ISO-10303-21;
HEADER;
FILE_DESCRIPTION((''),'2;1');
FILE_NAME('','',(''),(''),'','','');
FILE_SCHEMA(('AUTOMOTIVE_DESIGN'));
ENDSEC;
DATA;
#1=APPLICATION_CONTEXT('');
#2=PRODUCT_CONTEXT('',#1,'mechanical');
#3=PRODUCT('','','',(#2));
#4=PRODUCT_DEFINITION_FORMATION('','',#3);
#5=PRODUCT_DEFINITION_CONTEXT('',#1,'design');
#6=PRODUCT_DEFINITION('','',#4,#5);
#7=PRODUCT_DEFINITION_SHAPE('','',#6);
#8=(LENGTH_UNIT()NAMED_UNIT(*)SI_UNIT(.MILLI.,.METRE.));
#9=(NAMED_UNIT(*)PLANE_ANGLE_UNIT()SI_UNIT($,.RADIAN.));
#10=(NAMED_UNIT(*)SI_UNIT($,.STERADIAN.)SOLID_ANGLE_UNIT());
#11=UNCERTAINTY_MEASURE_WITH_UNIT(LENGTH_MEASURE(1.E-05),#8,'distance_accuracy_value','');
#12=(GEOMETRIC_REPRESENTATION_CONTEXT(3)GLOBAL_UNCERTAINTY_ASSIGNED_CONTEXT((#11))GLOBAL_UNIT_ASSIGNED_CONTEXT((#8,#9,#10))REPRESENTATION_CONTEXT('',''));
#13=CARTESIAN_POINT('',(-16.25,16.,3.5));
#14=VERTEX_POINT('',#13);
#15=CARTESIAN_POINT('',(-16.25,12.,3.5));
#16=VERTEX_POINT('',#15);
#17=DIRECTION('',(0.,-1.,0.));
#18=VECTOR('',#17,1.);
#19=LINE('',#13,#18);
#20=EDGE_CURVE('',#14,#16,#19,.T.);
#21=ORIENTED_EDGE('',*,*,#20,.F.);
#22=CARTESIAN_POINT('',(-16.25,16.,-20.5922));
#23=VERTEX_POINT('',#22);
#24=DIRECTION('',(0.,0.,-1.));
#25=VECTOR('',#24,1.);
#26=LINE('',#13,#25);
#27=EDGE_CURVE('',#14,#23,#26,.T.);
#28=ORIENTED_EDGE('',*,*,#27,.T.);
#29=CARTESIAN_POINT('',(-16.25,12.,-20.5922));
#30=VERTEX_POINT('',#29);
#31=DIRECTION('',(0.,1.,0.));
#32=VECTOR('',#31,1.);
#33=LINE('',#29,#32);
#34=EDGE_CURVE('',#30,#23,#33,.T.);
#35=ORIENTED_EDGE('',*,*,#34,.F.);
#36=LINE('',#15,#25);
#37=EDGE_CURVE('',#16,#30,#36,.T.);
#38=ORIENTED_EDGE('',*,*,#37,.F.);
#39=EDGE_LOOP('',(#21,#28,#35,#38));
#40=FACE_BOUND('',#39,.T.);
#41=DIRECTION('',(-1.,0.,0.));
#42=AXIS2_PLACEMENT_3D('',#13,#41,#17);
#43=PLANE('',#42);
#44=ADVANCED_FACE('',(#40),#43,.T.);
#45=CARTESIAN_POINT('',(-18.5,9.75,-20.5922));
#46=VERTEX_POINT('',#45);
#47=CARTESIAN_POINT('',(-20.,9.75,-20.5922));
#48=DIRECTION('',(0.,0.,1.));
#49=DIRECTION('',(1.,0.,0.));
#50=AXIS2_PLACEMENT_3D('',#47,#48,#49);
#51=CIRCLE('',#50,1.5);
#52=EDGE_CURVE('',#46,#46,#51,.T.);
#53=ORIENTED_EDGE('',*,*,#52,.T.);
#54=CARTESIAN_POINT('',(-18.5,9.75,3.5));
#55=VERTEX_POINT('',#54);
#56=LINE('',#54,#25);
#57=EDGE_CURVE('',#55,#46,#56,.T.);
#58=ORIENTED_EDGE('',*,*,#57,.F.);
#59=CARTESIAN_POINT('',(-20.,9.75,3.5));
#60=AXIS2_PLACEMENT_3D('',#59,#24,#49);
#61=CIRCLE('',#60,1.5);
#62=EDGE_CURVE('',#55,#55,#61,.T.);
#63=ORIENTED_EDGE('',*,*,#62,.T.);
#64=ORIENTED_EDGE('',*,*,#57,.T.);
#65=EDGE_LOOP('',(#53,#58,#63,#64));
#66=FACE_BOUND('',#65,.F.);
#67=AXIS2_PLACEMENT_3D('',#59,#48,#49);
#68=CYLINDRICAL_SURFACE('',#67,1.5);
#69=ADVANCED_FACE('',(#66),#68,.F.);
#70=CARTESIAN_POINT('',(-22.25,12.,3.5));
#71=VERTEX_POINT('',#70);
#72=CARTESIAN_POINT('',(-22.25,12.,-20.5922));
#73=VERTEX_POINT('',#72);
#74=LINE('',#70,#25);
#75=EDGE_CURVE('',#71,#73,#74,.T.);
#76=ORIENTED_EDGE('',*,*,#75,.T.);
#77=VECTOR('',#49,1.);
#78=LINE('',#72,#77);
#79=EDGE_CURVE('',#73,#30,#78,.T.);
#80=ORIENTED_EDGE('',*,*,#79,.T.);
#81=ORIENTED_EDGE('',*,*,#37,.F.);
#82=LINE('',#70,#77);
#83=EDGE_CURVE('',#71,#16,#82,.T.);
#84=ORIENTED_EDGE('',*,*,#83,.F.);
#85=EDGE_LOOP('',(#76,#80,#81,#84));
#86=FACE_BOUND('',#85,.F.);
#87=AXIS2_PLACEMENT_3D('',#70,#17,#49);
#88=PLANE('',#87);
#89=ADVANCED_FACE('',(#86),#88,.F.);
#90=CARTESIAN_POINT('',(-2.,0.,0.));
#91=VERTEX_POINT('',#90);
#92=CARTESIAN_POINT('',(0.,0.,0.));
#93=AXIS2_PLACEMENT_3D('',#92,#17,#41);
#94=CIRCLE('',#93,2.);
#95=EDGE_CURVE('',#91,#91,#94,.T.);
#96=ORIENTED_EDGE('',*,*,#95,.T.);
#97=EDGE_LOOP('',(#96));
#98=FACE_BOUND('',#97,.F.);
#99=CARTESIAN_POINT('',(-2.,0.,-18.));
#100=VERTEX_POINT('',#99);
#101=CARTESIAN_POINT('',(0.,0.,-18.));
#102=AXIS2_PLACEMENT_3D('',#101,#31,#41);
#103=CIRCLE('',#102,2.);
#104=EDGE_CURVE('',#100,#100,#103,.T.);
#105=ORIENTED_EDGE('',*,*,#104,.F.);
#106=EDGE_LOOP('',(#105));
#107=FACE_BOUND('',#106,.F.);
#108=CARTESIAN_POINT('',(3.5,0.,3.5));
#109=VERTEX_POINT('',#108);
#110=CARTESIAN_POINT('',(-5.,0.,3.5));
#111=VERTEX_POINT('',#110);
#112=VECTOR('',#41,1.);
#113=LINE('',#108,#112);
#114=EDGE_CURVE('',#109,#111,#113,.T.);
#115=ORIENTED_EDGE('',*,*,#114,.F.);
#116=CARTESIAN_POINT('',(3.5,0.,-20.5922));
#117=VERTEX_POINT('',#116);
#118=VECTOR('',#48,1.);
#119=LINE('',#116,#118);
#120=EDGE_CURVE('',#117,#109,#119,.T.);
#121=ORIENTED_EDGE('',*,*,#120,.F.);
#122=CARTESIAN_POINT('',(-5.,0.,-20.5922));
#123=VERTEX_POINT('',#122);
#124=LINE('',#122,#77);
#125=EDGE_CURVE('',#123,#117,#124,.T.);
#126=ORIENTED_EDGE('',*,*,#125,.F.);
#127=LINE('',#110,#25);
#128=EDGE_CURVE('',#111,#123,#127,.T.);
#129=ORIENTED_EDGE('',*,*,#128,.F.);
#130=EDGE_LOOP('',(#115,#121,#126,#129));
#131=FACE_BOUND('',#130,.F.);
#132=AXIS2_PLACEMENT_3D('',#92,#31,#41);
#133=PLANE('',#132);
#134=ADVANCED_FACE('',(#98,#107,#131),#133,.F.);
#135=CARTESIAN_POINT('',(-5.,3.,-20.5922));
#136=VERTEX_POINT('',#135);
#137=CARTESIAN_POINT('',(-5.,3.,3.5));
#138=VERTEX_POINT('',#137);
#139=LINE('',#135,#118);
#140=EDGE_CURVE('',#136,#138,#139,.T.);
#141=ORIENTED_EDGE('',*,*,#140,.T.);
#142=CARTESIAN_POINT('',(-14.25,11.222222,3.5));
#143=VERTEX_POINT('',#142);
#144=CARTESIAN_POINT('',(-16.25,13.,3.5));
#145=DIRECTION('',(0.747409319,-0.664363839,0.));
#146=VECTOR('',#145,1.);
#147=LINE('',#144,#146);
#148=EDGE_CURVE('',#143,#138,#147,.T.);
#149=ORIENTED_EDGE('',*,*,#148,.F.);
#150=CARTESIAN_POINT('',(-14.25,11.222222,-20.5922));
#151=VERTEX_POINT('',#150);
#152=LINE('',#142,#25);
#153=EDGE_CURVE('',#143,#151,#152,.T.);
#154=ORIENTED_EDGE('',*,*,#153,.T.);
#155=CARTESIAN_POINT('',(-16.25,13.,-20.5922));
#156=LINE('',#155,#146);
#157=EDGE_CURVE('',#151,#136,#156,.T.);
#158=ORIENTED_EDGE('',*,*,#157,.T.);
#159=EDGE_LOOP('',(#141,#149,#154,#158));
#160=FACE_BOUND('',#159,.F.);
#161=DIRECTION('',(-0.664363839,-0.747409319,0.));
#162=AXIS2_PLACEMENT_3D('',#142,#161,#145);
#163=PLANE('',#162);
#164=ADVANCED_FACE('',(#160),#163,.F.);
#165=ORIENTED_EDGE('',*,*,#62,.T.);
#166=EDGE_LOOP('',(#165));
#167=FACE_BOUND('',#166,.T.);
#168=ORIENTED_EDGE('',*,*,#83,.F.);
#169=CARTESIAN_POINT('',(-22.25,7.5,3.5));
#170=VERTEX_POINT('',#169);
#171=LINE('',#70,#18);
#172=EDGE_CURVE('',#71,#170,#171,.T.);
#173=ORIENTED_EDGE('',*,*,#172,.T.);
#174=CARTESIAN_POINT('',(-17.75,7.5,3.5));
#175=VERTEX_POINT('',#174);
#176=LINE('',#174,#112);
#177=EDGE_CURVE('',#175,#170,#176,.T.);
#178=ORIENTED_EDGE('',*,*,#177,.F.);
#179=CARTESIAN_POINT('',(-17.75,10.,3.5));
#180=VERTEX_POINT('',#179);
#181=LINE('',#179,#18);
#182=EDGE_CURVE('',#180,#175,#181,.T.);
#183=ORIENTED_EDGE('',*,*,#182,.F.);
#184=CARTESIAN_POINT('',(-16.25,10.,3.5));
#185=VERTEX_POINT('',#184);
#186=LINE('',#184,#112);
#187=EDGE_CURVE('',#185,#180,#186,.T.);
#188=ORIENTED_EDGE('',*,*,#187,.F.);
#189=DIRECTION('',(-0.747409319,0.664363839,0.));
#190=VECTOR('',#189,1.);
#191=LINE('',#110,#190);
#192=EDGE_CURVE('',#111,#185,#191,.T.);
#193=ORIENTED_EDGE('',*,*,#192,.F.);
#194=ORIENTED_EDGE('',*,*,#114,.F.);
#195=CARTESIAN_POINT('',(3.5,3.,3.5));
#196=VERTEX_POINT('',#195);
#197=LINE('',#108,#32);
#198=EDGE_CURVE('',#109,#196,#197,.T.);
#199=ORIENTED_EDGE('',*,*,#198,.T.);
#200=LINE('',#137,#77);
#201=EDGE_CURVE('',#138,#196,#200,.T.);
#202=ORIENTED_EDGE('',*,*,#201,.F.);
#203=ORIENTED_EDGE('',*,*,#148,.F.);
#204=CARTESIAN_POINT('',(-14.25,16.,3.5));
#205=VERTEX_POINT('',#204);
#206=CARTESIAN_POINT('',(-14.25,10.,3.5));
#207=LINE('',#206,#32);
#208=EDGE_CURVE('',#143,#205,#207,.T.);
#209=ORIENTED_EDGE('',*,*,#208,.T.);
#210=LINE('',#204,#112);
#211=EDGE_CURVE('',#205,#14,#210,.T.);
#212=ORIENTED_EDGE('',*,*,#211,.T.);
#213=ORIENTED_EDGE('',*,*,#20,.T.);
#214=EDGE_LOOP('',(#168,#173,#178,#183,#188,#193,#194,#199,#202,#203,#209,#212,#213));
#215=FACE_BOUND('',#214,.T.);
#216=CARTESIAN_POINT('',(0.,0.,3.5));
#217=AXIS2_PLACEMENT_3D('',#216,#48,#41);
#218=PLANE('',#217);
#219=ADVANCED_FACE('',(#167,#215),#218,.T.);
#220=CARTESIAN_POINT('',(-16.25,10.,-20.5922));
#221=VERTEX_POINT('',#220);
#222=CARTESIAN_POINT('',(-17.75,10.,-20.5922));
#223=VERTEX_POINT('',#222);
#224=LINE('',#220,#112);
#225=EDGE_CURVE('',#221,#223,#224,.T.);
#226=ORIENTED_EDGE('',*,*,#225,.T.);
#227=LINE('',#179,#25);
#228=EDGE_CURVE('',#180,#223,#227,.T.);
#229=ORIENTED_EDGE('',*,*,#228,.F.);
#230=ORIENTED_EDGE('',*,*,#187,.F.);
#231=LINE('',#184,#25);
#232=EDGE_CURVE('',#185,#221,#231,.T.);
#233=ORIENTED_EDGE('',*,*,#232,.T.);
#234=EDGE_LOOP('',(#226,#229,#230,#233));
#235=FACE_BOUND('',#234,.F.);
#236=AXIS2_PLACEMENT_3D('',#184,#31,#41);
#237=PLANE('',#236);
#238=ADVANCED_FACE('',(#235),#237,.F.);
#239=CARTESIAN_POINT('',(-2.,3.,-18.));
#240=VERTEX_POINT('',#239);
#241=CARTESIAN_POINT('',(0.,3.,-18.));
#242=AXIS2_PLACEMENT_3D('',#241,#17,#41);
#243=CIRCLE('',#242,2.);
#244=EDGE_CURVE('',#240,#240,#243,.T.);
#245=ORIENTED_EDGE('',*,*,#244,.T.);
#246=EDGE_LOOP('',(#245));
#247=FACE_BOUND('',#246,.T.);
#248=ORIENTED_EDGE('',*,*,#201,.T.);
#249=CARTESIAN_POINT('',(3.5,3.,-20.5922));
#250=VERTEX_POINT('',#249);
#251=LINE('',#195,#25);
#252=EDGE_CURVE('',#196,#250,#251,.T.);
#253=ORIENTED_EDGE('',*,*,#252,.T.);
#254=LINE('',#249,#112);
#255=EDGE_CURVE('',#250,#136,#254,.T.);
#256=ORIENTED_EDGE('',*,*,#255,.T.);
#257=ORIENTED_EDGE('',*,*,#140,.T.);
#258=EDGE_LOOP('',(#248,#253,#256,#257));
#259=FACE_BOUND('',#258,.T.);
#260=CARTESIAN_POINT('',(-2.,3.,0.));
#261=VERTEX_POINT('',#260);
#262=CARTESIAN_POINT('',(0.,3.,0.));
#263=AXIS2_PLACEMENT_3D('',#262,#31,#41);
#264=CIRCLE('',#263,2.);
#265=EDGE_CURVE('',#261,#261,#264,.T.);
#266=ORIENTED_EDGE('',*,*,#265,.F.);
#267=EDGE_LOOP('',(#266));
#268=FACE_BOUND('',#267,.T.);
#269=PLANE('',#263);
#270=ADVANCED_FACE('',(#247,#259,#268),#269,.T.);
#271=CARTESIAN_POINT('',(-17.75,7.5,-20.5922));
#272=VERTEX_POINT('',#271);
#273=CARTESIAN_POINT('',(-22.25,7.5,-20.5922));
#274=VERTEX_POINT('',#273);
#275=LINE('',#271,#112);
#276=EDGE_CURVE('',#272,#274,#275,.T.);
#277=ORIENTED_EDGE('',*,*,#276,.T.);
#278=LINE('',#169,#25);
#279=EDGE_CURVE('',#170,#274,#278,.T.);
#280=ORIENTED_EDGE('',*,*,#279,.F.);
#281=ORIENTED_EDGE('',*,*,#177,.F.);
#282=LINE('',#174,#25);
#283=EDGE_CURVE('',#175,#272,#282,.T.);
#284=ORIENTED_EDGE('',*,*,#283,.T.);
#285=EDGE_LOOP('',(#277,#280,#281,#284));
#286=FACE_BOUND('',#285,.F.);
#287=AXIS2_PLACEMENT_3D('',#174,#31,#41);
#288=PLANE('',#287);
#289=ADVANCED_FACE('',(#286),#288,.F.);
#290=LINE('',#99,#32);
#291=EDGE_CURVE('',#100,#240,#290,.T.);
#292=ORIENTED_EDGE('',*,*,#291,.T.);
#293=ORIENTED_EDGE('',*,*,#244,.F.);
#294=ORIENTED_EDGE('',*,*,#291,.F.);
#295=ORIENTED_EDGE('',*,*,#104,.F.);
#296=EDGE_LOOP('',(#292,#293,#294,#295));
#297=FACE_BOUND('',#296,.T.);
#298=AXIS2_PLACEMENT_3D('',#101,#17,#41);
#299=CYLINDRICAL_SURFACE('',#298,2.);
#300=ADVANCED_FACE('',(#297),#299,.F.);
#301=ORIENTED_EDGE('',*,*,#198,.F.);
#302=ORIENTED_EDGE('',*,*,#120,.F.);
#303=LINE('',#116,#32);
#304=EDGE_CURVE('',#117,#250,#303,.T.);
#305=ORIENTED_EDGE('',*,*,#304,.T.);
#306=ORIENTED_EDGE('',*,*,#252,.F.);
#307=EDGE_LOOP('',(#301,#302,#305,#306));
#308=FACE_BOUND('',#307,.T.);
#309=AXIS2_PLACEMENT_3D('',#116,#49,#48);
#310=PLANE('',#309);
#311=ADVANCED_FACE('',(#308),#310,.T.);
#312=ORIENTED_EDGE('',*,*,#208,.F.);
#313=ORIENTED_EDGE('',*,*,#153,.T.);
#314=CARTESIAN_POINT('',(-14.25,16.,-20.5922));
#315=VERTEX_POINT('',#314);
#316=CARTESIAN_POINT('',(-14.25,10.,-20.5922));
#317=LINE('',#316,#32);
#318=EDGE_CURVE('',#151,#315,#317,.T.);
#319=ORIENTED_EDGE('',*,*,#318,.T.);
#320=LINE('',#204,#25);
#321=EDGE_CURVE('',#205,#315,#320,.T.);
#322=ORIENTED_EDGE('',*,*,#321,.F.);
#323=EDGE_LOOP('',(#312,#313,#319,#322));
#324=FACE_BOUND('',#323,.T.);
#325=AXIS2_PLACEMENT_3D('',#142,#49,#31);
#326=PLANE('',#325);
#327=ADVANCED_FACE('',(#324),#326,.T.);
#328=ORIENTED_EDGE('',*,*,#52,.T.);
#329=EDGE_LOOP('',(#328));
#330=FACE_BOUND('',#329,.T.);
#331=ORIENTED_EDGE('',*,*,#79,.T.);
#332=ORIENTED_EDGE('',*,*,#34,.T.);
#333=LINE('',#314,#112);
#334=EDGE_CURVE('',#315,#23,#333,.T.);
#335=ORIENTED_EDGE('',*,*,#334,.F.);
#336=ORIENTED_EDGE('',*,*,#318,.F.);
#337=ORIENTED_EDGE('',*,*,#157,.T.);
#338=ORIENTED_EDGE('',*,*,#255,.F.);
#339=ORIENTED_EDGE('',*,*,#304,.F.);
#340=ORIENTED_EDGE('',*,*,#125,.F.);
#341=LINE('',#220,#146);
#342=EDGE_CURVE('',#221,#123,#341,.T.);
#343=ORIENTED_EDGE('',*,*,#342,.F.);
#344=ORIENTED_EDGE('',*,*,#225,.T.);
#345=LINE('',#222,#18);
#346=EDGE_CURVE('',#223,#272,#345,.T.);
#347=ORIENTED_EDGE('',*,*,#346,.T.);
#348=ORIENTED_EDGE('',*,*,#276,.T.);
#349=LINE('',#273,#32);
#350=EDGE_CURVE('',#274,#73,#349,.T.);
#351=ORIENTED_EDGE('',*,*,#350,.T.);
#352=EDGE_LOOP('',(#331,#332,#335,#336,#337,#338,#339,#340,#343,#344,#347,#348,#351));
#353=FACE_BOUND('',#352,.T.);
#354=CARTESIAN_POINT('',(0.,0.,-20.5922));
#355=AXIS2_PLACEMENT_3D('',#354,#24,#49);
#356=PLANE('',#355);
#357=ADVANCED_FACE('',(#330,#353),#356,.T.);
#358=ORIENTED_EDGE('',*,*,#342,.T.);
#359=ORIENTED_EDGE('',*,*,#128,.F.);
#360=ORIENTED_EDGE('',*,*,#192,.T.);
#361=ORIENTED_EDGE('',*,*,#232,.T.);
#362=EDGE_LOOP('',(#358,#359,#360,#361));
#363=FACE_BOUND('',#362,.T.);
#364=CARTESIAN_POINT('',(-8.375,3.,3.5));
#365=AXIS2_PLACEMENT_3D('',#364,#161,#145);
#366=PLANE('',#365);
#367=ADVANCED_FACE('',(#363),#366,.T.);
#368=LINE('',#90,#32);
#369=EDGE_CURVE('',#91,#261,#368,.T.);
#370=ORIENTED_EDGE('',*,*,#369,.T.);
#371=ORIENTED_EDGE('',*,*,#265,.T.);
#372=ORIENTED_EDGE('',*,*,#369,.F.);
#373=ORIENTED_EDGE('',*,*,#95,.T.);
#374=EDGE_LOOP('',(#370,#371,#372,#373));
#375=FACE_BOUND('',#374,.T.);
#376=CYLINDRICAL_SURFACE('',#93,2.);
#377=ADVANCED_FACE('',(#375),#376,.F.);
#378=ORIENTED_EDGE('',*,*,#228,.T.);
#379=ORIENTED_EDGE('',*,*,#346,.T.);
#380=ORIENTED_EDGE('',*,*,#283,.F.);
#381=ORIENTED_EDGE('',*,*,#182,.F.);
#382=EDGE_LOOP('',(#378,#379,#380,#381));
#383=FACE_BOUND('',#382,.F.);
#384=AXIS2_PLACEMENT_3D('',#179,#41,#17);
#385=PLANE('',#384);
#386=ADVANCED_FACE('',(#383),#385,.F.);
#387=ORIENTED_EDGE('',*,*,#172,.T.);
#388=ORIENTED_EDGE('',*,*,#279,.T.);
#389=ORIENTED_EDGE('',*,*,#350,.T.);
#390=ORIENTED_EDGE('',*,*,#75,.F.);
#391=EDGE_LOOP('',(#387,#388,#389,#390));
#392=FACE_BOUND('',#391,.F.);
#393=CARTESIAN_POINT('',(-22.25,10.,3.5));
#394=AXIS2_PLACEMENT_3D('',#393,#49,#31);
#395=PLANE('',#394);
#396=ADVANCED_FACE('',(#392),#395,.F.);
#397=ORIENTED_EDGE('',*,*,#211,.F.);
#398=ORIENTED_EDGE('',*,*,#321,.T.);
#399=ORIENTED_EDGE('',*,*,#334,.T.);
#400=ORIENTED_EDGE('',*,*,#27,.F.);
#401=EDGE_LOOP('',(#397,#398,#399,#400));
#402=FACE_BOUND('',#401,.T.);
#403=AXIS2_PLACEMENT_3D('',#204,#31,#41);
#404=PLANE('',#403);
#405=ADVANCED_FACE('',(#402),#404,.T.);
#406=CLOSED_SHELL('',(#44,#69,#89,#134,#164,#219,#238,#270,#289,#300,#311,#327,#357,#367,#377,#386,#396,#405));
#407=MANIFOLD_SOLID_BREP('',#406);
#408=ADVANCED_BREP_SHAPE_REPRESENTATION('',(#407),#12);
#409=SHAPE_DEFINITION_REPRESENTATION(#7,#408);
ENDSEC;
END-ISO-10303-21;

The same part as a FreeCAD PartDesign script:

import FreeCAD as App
import Part
import Sketcher


def add_polygon(sketch, points):
    """Adds a closed chain of lines whose ends are joined by coincident constraints."""
    first, n = sketch.GeometryCount, len(points)
    for a, b in zip(points, points[1:] + points[:1]):
        sketch.addGeometry(Part.LineSegment(App.Vector(*a, 0), App.Vector(*b, 0)), False)
    for i in range(n):
        sketch.addConstraint(Sketcher.Constraint("Coincident", first + i, 2, first + (i + 1) % n, 1))

doc = App.newDocument("Part")
body = doc.addObject("PartDesign::Body", "Body")

# Sketch on XZ plane
sketch1 = body.newObject("Sketcher::SketchObject", "Sketch")
sketch1.AttachmentSupport = (doc.getObject("XZ_Plane"), [""])
sketch1.MapMode = "FlatFace"
add_polygon(sketch1, [(-5, 3.5), (3.5, 3.5), (3.5, -20.5922), (-5, -20.5922)])  # lines 0-3
sketch1.addGeometry(Part.Circle(App.Vector(0, 0, 0), App.Vector(0, 0, 1), 2), False)  # 4
sketch1.addGeometry(Part.Circle(App.Vector(0, -18, 0), App.Vector(0, 0, 1), 2), False)  # 5
sketch1.addConstraint([
    Sketcher.Constraint("Horizontal", 0),
    Sketcher.Constraint("Vertical", 1),
    Sketcher.Constraint("Horizontal", 2),
    Sketcher.Constraint("Vertical", 3),
    Sketcher.Constraint("Coincident", 4, 3, -1, 1),
    Sketcher.Constraint("Equal", 4, 5),
    Sketcher.Constraint("PointOnObject", 5, 3, -2),
    Sketcher.Constraint("Diameter", 4, 4.0),
    Sketcher.Constraint("DistanceY", 5, 3, -1, 1, 18.0),
    Sketcher.Constraint("DistanceX", 2, 2, -1, 1, 5.0),
    Sketcher.Constraint("DistanceX", -1, 1, 0, 2, 3.5),
    Sketcher.Constraint("DistanceY", -1, 1, 0, 2, 3.5),
    Sketcher.Constraint("DistanceY", 1, 2, 1, 1, 24.0922),
])
pad1 = body.newObject("PartDesign::Pad", "Pad")
pad1.Profile = sketch1
pad1.Length = 3
pad1.Reversed = True

# Sketch on XY plane
sketch2 = body.newObject("Sketcher::SketchObject", "Sketch001")
sketch2.AttachmentSupport = (doc.getObject("XY_Plane"), [""])
sketch2.MapMode = "FlatFace"
sketch2.AttachmentOffset = App.Placement(App.Vector(0, 0, 3.5), App.Rotation())
add_polygon(sketch2, [(-5, 0), (-5, 3), (-14.25, 11.222222), (-14.25, 16), (-16.25, 16), (-16.25, 12), (-22.25, 12), (-22.25, 7.5), (-17.75, 7.5), (-17.75, 10), (-16.25, 10)])  # lines 0-10
sketch2.addGeometry(Part.Circle(App.Vector(-20, 9.75, 0), App.Vector(0, 0, 1), 1.5), False)  # 11
sketch2.addConstraint([
    Sketcher.Constraint("Vertical", 0),
    Sketcher.Constraint("Vertical", 2),
    Sketcher.Constraint("Horizontal", 3),
    Sketcher.Constraint("Vertical", 4),
    Sketcher.Constraint("Horizontal", 5),
    Sketcher.Constraint("Vertical", 6),
    Sketcher.Constraint("Horizontal", 7),
    Sketcher.Constraint("Vertical", 8),
    Sketcher.Constraint("Horizontal", 9),
    Sketcher.Constraint("PointOnObject", 10, 2, -1),
    Sketcher.Constraint("Parallel", 1, 10),
    Sketcher.Constraint("Vertical", 4, 2, 9, 2),
    Sketcher.Constraint("Equal", 7, 6),
    Sketcher.Constraint("Diameter", 11, 3.0),
    Sketcher.Constraint("DistanceX", 3, 2, 3, 1, 2.0),
    Sketcher.Constraint("DistanceX", 5, 2, 5, 1, 6.0),
    Sketcher.Constraint("DistanceY", 0, 1, 0, 2, 3.0),
    Sketcher.Constraint("DistanceX", 7, 1, 7, 2, 4.5),
    Sketcher.Constraint("DistanceY", 8, 1, 8, 2, 2.5),
    Sketcher.Constraint("DistanceY", -1, 1, 8, 2, 10.0),
    Sketcher.Constraint("DistanceY", 4, 2, 4, 1, 4.0),
    Sketcher.Constraint("DistanceY", 11, 3, 8, 2, 0.25),
    Sketcher.Constraint("DistanceX", 11, 3, -1, 1, 20.0),
    Sketcher.Constraint("DistanceX", 0, 2, -1, 1, 5.0),
    Sketcher.Constraint("DistanceX", 1, 2, -1, 1, 14.25),
])
pad2 = body.newObject("PartDesign::Pad", "Pad001")
pad2.Profile = sketch2
pad2.Length = 24.0922
pad2.Reversed = True

doc.recompute()
